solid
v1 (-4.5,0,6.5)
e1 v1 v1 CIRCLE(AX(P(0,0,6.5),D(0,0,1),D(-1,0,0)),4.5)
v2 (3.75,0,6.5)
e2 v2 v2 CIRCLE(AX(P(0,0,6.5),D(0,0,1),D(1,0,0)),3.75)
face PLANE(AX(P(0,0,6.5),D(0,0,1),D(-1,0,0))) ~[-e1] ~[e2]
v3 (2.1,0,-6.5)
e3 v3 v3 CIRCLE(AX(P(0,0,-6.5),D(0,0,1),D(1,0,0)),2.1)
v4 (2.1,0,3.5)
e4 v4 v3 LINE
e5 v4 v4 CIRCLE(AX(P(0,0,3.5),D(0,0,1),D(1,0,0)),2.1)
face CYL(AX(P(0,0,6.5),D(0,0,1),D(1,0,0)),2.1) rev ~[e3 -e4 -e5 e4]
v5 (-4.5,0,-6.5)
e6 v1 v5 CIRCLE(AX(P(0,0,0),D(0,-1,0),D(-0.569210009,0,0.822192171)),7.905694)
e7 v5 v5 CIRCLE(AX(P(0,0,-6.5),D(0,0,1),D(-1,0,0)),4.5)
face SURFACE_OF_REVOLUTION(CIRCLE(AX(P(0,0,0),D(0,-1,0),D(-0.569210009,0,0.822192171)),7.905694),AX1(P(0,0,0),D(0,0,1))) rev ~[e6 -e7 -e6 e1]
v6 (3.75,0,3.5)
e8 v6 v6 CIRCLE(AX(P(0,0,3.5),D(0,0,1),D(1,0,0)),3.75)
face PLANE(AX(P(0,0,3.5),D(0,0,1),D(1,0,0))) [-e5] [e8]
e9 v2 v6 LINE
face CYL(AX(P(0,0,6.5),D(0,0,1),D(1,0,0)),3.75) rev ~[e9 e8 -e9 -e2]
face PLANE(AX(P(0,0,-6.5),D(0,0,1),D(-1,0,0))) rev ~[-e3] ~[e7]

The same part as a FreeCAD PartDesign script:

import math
import FreeCAD as App
import Part
import Sketcher
Q = App.Units.Quantity

doc = App.newDocument("Part")
body = doc.addObject("PartDesign::Body", "Body")

sketch1 = doc.addObject("Sketcher::SketchObject", "Sketch")
body.addObject(sketch1)
sketch1.AttachmentSupport = (doc.XZ_Plane, [""])
sketch1.MapMode = "FlatFace"
sketch1.addGeometry([
    Part.LineSegment(App.Vector(0, -6.5, 0), App.Vector(0, 6.5, 0)),
    Part.LineSegment(App.Vector(0, 6.5, 0), App.Vector(-4.5, 6.5, 0)),
    Part.ArcOfCircle(Part.Circle(App.Vector(0, 0, 0), App.Vector(0, 0, 1), 7.905694), math.radians(124.695156), math.radians(235.304844)),
    Part.LineSegment(App.Vector(-4.5, -6.5, 0), App.Vector(0, -6.5, 0)),
], False)
sketch1.addConstraint([
    Sketcher.Constraint("Coincident", 0, 2, 1, 1),
    Sketcher.Constraint("Coincident", 1, 2, 2, 1),
    Sketcher.Constraint("Coincident", 2, 2, 3, 1),
    Sketcher.Constraint("Coincident", 3, 2, 0, 1),
    Sketcher.Constraint("Vertical", 0),
    Sketcher.Constraint("Horizontal", 1),
    Sketcher.Constraint("Horizontal", 3),
    Sketcher.Constraint("Coincident", 2, 3, -1, 1),
    Sketcher.Constraint("Symmetric", 0, 2, 3, 2, -1, 1),
    Sketcher.Constraint("DistanceY", 0, 1, 0, 2, Q("13 mm")),
    Sketcher.Constraint("DistanceX", 1, 2, 1, 1, Q("4.5 mm")),
])
revolution = doc.addObject("PartDesign::Revolution", "Revolution")
body.addObject(revolution)
revolution.Profile = sketch1
revolution.ReferenceAxis = (sketch1, ["V_Axis"])
revolution.Angle = 360

sketch2 = doc.addObject("Sketcher::SketchObject", "Sketch001")
body.addObject(sketch2)
sketch2.AttachmentSupport = (doc.XY_Plane, [""])
sketch2.MapMode = "FlatFace"
sketch2.AttachmentOffset = App.Placement(App.Vector(0, 0, 6.5), App.Rotation())
sketch2.addGeometry(Part.Circle(App.Vector(0, 0, 0), App.Vector(0, 0, 1), 2.1), False)
sketch2.addConstraint([
    Sketcher.Constraint("Coincident", 0, 3, -1, 1),
    Sketcher.Constraint("Diameter", 0, Q("4.2 mm")),
])
pocket1 = doc.addObject("PartDesign::Pocket", "Pocket")
body.addObject(pocket1)
pocket1.Profile = sketch2
pocket1.Type = "ThroughAll"

sketch3 = doc.addObject("Sketcher::SketchObject", "Sketch002")
body.addObject(sketch3)
sketch3.AttachmentSupport = (doc.XY_Plane, [""])
sketch3.MapMode = "FlatFace"
sketch3.AttachmentOffset = App.Placement(App.Vector(0, 0, 6.5), App.Rotation())
sketch3.addGeometry([
    Part.Circle(App.Vector(0, 0, 0), App.Vector(0, 0, 1), 3.75),
    Part.Circle(App.Vector(0, 0, 0), App.Vector(0, 0, 1), 2.1),
], False)
sketch3.addConstraint([
    Sketcher.Constraint("Coincident", 0, 3, -1, 1),
    Sketcher.Constraint("Coincident", 1, 3, -1, 1),
    Sketcher.Constraint("Diameter", 0, Q("7.5 mm")),
    Sketcher.Constraint("Diameter", 1, Q("4.2 mm")),
])
pocket2 = doc.addObject("PartDesign::Pocket", "Pocket001")
body.addObject(pocket2)
pocket2.Profile = sketch3
pocket2.Length = 3

doc.recompute()
